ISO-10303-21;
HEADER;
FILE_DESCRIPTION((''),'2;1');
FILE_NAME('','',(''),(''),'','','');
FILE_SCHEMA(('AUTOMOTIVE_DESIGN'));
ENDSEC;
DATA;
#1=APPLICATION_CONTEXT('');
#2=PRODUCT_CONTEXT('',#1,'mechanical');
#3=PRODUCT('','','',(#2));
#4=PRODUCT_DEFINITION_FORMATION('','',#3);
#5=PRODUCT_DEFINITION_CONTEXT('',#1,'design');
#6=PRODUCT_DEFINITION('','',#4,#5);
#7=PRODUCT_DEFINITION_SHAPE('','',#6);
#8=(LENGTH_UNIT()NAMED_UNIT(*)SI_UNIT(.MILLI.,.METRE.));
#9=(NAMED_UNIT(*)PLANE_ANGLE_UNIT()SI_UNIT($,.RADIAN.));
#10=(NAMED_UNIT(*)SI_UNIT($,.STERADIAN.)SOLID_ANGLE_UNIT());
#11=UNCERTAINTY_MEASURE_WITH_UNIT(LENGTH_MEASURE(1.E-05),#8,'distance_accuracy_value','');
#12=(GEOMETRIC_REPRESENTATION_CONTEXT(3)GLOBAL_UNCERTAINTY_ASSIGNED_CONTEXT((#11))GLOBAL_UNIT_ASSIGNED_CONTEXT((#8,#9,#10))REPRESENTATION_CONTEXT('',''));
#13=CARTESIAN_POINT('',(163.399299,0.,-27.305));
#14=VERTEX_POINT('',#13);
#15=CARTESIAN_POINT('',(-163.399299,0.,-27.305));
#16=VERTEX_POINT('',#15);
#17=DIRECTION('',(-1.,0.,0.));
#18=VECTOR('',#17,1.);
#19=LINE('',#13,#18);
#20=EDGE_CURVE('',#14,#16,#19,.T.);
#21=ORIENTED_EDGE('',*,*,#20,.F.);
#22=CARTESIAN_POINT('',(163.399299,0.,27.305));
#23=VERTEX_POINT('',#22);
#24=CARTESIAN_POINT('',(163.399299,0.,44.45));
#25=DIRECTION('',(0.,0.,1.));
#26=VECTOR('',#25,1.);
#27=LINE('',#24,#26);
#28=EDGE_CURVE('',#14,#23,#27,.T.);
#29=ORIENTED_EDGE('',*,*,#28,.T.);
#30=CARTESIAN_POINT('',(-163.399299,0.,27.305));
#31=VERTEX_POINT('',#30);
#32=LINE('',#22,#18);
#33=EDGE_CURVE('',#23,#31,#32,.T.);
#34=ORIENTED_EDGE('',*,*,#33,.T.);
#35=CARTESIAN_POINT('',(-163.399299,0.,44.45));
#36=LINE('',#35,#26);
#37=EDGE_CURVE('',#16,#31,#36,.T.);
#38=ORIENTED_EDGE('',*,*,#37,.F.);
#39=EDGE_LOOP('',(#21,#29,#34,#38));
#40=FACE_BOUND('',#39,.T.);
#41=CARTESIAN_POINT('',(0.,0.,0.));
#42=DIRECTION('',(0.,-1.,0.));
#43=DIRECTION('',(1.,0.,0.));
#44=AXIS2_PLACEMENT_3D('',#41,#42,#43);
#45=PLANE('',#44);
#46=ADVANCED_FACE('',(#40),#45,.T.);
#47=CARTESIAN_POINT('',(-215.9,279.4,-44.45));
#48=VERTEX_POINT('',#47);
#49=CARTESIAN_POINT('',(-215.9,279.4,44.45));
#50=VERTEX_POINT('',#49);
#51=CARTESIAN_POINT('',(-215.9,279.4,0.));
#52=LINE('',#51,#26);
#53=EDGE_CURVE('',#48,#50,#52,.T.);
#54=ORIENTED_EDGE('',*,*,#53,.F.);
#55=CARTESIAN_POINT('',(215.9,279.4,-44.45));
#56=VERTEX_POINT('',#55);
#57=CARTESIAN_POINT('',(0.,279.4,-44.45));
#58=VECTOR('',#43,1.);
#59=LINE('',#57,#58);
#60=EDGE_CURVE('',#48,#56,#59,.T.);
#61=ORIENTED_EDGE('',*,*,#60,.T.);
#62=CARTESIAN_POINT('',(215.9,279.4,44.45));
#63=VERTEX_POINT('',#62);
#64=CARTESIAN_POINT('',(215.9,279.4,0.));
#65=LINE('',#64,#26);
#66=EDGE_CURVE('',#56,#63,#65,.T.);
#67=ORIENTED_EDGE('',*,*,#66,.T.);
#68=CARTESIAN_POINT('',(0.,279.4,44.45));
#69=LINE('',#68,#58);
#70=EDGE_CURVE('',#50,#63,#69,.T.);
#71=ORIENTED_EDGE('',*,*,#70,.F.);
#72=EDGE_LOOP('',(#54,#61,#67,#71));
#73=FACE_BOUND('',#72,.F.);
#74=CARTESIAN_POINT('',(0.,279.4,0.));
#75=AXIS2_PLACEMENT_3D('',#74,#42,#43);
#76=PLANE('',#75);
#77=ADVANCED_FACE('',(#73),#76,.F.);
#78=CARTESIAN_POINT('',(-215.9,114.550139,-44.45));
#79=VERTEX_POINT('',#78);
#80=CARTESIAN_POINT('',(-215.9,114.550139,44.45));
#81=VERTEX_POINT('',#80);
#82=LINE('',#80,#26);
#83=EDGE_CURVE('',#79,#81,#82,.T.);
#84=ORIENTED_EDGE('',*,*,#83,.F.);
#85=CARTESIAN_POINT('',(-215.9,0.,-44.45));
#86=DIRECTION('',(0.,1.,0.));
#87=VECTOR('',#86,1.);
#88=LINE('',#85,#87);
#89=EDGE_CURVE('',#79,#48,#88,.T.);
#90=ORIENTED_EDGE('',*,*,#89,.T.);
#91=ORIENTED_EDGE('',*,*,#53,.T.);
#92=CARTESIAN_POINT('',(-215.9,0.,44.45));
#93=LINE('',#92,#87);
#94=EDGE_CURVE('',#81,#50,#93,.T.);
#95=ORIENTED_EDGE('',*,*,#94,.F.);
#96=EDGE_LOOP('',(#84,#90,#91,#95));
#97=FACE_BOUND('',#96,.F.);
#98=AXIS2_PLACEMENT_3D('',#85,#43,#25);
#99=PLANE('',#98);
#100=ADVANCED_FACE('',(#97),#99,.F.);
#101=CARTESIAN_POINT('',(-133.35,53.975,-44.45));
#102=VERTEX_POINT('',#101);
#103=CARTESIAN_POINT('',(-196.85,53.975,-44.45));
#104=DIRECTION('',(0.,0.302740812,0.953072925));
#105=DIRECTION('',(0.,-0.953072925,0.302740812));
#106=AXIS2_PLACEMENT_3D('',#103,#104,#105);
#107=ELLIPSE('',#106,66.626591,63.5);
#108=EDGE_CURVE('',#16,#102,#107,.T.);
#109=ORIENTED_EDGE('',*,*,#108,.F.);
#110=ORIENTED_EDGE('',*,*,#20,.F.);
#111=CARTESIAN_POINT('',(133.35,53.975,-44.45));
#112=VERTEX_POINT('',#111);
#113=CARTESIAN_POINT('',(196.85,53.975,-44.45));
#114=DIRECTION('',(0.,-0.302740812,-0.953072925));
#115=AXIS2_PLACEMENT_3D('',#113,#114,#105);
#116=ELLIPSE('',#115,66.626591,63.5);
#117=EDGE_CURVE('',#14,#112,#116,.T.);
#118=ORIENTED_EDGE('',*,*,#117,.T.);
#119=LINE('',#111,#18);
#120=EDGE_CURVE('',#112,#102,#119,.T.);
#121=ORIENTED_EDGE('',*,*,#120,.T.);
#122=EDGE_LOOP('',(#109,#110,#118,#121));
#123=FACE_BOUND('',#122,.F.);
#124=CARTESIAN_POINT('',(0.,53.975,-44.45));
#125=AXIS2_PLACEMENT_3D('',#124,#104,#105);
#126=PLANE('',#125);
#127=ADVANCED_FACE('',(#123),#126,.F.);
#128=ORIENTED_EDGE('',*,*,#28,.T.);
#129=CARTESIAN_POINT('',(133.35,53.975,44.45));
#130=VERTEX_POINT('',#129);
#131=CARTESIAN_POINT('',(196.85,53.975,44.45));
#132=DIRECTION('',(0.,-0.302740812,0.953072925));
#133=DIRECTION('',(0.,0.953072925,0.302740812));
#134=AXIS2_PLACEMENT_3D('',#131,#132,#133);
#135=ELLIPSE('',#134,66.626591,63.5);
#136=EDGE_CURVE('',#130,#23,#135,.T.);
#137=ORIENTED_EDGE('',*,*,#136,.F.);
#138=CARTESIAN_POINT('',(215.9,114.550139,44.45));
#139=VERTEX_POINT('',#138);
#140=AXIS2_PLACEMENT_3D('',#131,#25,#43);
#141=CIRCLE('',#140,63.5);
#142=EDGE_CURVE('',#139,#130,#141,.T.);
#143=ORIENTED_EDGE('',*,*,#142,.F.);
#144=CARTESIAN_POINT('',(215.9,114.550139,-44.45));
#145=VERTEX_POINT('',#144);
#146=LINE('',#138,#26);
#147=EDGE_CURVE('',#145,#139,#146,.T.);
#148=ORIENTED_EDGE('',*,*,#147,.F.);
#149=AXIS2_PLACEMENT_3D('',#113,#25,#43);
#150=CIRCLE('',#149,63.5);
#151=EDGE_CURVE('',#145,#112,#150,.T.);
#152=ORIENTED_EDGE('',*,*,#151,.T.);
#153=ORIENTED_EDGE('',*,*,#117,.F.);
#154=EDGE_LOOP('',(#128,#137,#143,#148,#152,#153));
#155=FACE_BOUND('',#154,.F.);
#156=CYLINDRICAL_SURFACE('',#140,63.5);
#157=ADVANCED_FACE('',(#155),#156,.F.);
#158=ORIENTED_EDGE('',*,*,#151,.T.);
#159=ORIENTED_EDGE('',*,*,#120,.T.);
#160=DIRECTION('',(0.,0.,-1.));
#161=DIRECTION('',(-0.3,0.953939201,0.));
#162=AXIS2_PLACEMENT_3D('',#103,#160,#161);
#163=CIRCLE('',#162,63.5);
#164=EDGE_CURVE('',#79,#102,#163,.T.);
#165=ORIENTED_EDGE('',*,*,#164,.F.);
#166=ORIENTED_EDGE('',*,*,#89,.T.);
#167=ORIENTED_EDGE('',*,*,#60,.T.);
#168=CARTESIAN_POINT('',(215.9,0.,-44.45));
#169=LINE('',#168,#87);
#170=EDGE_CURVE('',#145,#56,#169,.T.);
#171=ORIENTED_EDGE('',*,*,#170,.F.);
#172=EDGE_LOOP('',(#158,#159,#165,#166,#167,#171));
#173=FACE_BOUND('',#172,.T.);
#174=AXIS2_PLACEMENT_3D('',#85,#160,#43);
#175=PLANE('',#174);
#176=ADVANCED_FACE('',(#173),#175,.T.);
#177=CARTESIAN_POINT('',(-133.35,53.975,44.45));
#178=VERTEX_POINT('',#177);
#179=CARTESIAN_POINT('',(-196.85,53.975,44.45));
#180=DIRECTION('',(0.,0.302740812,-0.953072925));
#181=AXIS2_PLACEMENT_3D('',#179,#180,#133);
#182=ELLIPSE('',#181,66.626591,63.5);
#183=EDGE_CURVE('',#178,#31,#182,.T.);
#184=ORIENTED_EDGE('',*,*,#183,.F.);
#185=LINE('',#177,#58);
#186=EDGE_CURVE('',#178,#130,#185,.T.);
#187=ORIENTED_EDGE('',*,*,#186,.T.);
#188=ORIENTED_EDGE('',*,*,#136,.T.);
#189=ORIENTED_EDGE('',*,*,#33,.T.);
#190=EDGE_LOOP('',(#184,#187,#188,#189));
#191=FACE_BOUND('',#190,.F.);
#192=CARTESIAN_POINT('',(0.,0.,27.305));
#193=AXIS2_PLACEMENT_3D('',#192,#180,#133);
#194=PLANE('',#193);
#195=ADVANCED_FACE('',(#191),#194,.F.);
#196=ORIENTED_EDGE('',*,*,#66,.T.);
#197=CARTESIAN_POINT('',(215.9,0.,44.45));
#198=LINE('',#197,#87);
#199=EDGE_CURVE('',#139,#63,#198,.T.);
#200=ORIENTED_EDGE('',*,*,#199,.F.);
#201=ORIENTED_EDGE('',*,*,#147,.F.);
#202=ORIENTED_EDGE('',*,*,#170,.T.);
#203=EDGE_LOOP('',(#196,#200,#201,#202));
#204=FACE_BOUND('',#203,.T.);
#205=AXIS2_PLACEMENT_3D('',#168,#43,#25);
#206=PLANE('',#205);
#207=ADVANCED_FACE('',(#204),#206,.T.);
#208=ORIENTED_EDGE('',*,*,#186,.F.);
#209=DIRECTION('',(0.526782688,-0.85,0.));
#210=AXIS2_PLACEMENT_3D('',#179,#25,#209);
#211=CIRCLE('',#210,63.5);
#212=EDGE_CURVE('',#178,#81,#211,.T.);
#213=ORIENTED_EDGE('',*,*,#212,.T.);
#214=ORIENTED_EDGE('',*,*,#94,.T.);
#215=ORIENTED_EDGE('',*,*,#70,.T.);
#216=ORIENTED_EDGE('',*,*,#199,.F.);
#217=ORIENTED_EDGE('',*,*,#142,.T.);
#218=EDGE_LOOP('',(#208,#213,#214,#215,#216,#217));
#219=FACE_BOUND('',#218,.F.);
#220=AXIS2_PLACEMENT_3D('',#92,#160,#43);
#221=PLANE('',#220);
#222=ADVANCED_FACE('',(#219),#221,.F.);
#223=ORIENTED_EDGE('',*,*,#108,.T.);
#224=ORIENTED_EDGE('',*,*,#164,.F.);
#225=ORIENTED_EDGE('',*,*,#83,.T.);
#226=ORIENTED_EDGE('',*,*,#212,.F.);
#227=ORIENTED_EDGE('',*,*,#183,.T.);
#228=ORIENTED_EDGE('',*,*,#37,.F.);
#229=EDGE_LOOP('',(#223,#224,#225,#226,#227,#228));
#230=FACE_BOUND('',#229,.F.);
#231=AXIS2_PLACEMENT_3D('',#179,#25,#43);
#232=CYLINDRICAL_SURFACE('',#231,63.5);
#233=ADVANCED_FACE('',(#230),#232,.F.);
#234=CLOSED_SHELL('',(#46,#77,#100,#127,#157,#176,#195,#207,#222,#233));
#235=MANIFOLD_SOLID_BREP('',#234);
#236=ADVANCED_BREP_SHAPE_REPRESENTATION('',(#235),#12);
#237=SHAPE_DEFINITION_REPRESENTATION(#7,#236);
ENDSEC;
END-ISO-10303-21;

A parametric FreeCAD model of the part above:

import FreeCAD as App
import Part
import Sketcher
Q = App.Units.Quantity

doc = App.newDocument("Part")
body = doc.addObject("PartDesign::Body", "Body")

# Sketch on XZ plane
sketch1 = doc.addObject("Sketcher::SketchObject", "Sketch")
body.addObject(sketch1)
sketch1.AttachmentSupport = (doc.XZ_Plane, [""])
sketch1.MapMode = "FlatFace"
sketch1.addGeometry(Part.LineSegment(App.Vector(-216, 44, 0), App.Vector(-216, -44, 0)), False)
sketch1.addGeometry(Part.LineSegment(App.Vector(-216, -44, 0), App.Vector(216, -44, 0)), False)
sketch1.addGeometry(Part.LineSegment(App.Vector(216, -44, 0), App.Vector(216, 44, 0)), False)
sketch1.addGeometry(Part.LineSegment(App.Vector(216, 44, 0), App.Vector(-216, 44, 0)), False)
sketch1.addConstraint(Sketcher.Constraint("Coincident", 0, 2, 1, 1))
sketch1.addConstraint(Sketcher.Constraint("Coincident", 1, 2, 2, 1))
sketch1.addConstraint(Sketcher.Constraint("Coincident", 2, 2, 3, 1))
sketch1.addConstraint(Sketcher.Constraint("Coincident", 3, 2, 0, 1))
sketch1.addConstraint(Sketcher.Constraint("Vertical", 0))
sketch1.addConstraint(Sketcher.Constraint("Horizontal", 1))
sketch1.addConstraint(Sketcher.Constraint("Vertical", 2))
sketch1.addConstraint(Sketcher.Constraint("Horizontal", 3))
sketch1.addConstraint(Sketcher.Constraint("Symmetric", 0, 2, 2, 2, -1, 1))
sketch1.addConstraint(Sketcher.Constraint("DistanceX", 1, 1, 1, 2, Q("17 in")))
sketch1.addConstraint(Sketcher.Constraint("DistanceY", 0, 2, 0, 1, Q("3.5 in")))
pad1 = doc.addObject("PartDesign::Pad", "Pad")
body.addObject(pad1)
pad1.Profile = sketch1
pad1.Length = Q("11 in")
pad1.Reversed = True

# Sketch on XY plane
sketch2 = doc.addObject("Sketcher::SketchObject", "Sketch001")
body.addObject(sketch2)
sketch2.AttachmentSupport = (doc.XY_Plane, [""])
sketch2.MapMode = "FlatFace"
sketch2.AttachmentOffset = App.Placement(App.Vector(0, 0, 1.75 * 25.4), App.Rotation())
sketch2.addGeometry(Part.Circle(App.Vector(-197, 54, 0), App.Vector(0, 0, 1), 64), False)
sketch2.addGeometry(Part.Circle(App.Vector(197, 54, 0), App.Vector(0, 0, 1), 64), False)
sketch2.addConstraint(Sketcher.Constraint("Equal", 0, 1))
sketch2.addConstraint(Sketcher.Constraint("Symmetric", 0, 3, 1, 3, -2))
sketch2.addConstraint(Sketcher.Constraint("Diameter", 0, Q("5 in")))
sketch2.addConstraint(Sketcher.Constraint("DistanceX", 0, 3, 1, 3, Q("15.5 in")))
sketch2.addConstraint(Sketcher.Constraint("DistanceY", -1, 1, 0, 3, Q("2.125 in")))
pocket1 = doc.addObject("PartDesign::Pocket", "Pocket")
body.addObject(pocket1)
pocket1.Profile = sketch2
pocket1.Length = Q("5 in")

# Sketch on YZ plane
sketch3 = doc.addObject("Sketcher::SketchObject", "Sketch002")
body.addObject(sketch3)
sketch3.AttachmentSupport = (doc.YZ_Plane, [""])
sketch3.MapMode = "FlatFace"
sketch3.addGeometry(Part.LineSegment(App.Vector(0, 44, 0), App.Vector(0, 27, 0)), False)
sketch3.addGeometry(Part.LineSegment(App.Vector(0, 27, 0), App.Vector(54, 44, 0)), False)
sketch3.addGeometry(Part.LineSegment(App.Vector(54, 44, 0), App.Vector(0, 44, 0)), False)
sketch3.addGeometry(Part.LineSegment(App.Vector(0, -44, 0), App.Vector(54, -44, 0)), False)
sketch3.addGeometry(Part.LineSegment(App.Vector(54, -44, 0), App.Vector(0, -27, 0)), False)
sketch3.addGeometry(Part.LineSegment(App.Vector(0, -27, 0), App.Vector(0, -44, 0)), False)
sketch3.addConstraint(Sketcher.Constraint("Coincident", 0, 2, 1, 1))
sketch3.addConstraint(Sketcher.Constraint("Coincident", 1, 2, 2, 1))
sketch3.addConstraint(Sketcher.Constraint("Coincident", 2, 2, 0, 1))
sketch3.addConstraint(Sketcher.Constraint("Coincident", 3, 2, 4, 1))
sketch3.addConstraint(Sketcher.Constraint("Coincident", 4, 2, 5, 1))
sketch3.addConstraint(Sketcher.Constraint("Coincident", 5, 2, 3, 1))
sketch3.addConstraint(Sketcher.Constraint("Vertical", 0))
sketch3.addConstraint(Sketcher.Constraint("Horizontal", 2))
sketch3.addConstraint(Sketcher.Constraint("Horizontal", 3))
sketch3.addConstraint(Sketcher.Constraint("Vertical", 5))
sketch3.addConstraint(Sketcher.Constraint("Symmetric", 0, 2, 4, 2, -1, 1))
sketch3.addConstraint(Sketcher.Constraint("Symmetric", 1, 2, 3, 2, -1))
sketch3.addConstraint(Sketcher.Constraint("PointOnObject", 0, 2, -2))
sketch3.addConstraint(Sketcher.Constraint("DistanceY", 3, 2, 1, 2, Q("3.5 in")))
sketch3.addConstraint(Sketcher.Constraint("DistanceX", 2, 2, 2, 1, Q("2.125 in")))
sketch3.addConstraint(Sketcher.Constraint("DistanceY", 0, 2, 0, 1, Q("0.675 in")))
pocket2 = doc.addObject("PartDesign::Pocket", "Pocket001")
body.addObject(pocket2)
pocket2.Profile = sketch3
pocket2.Type = "ThroughAll"
pocket2.Midplane = True

doc.recompute()
